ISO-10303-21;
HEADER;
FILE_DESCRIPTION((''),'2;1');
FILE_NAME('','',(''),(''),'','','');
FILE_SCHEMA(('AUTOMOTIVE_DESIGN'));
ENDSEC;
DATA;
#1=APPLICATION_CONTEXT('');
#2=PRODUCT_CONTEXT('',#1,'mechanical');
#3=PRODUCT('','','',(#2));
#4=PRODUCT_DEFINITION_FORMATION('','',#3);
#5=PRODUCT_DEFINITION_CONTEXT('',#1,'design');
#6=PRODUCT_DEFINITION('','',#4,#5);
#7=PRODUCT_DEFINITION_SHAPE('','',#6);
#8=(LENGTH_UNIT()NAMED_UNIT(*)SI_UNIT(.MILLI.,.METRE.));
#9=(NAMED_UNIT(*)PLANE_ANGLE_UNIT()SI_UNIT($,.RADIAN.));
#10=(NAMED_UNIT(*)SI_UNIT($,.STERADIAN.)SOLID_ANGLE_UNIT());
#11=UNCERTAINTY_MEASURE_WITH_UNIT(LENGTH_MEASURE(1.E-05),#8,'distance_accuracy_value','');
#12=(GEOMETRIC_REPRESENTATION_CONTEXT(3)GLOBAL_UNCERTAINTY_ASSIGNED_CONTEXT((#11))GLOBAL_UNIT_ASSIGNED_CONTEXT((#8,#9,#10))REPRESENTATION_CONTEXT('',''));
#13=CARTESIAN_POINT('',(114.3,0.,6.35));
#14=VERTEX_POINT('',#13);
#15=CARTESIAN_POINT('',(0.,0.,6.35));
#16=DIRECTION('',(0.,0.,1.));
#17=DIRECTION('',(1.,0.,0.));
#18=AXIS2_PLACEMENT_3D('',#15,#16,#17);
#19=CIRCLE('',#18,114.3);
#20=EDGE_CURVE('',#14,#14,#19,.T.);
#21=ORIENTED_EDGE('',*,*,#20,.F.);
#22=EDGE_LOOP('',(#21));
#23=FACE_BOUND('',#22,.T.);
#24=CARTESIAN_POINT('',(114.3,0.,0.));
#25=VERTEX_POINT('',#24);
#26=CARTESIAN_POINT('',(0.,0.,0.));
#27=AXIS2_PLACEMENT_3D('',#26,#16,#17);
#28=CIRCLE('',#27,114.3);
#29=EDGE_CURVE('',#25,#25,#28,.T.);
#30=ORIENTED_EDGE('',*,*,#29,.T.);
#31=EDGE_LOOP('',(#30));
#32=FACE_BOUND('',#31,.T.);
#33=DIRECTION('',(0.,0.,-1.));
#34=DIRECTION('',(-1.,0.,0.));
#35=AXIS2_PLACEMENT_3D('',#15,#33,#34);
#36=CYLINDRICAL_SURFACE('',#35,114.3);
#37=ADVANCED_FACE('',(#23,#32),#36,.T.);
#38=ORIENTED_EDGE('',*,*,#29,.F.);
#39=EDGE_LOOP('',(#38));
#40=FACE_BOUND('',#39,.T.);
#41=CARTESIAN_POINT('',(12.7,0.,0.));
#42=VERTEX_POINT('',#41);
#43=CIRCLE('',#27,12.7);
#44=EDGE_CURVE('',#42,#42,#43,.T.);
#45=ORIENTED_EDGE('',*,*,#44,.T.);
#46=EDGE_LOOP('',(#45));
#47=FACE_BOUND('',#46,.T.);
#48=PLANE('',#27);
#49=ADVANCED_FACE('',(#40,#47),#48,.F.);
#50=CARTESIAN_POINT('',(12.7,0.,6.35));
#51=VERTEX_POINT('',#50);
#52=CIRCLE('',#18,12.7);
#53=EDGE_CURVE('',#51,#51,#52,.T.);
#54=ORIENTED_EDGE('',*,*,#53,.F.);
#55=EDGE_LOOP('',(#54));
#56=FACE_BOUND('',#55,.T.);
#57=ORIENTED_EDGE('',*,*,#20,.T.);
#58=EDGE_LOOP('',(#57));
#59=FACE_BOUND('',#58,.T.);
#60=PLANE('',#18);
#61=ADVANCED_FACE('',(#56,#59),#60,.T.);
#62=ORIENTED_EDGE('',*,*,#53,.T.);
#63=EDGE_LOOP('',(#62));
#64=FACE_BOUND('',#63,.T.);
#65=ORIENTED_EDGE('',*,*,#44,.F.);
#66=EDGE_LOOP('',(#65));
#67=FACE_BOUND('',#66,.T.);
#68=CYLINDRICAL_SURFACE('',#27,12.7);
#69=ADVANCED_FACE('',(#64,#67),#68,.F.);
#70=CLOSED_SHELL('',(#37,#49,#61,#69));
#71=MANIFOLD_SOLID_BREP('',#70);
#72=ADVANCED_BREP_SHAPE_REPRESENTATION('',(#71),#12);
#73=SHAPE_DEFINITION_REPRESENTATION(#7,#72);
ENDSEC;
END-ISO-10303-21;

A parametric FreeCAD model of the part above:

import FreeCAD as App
import Part
import Sketcher
Q = App.Units.Quantity

doc = App.newDocument("Part")
params = doc.addObject("Spreadsheet::Sheet", "Params")
for row, (alias, value) in enumerate([
    ("sketch1_diameter", "9 in"),
    ("pad1_length", "0.25 in"),
    ("sketch2_diameter", "1 in"),
    ("pocket1_length", "0.25 in"),
], start=1):
    params.set(f"A{row}", alias)
    params.set(f"B{row}", "=" + value)
    params.setAlias(f"B{row}", alias)

body = doc.addObject("PartDesign::Body", "Body")

# Sketch on XY plane
sketch1 = body.newObject("Sketcher::SketchObject", "Sketch")
sketch1.AttachmentSupport = (doc.getObject("XY_Plane"), [""])
sketch1.MapMode = "FlatFace"
sketch1.addGeometry(Part.Circle(App.Vector(0, 0, 0), App.Vector(0, 0, 1), 114), False)
sketch1.addConstraint(Sketcher.Constraint("Coincident", 0, 3, -1, 1))
sketch1.addConstraint(Sketcher.Constraint("Diameter", 0, Q("9 in")))
sketch1.setExpression("Constraints[1]", "Params.sketch1_diameter")
pad1 = body.newObject("PartDesign::Pad", "Pad")
pad1.Profile = sketch1
pad1.setExpression("Length", "Params.pad1_length")

# Sketch on XY plane
sketch2 = body.newObject("Sketcher::SketchObject", "Sketch001")
sketch2.AttachmentSupport = (doc.getObject("XY_Plane"), [""])
sketch2.MapMode = "FlatFace"
sketch2.AttachmentOffset = App.Placement(App.Vector(0, 0, 0.25 * 25.4), App.Rotation())
sketch2.addGeometry(Part.Circle(App.Vector(0, 0, 0), App.Vector(0, 0, 1), 13), False)
sketch2.addConstraint(Sketcher.Constraint("Coincident", 0, 3, -1, 1))
sketch2.addConstraint(Sketcher.Constraint("Diameter", 0, Q("1 in")))
sketch2.setExpression("Constraints[1]", "Params.sketch2_diameter")
pocket1 = body.newObject("PartDesign::Pocket", "Pocket")
pocket1.Profile = sketch2
pocket1.setExpression("Length", "Params.pocket1_length")

doc.recompute()
